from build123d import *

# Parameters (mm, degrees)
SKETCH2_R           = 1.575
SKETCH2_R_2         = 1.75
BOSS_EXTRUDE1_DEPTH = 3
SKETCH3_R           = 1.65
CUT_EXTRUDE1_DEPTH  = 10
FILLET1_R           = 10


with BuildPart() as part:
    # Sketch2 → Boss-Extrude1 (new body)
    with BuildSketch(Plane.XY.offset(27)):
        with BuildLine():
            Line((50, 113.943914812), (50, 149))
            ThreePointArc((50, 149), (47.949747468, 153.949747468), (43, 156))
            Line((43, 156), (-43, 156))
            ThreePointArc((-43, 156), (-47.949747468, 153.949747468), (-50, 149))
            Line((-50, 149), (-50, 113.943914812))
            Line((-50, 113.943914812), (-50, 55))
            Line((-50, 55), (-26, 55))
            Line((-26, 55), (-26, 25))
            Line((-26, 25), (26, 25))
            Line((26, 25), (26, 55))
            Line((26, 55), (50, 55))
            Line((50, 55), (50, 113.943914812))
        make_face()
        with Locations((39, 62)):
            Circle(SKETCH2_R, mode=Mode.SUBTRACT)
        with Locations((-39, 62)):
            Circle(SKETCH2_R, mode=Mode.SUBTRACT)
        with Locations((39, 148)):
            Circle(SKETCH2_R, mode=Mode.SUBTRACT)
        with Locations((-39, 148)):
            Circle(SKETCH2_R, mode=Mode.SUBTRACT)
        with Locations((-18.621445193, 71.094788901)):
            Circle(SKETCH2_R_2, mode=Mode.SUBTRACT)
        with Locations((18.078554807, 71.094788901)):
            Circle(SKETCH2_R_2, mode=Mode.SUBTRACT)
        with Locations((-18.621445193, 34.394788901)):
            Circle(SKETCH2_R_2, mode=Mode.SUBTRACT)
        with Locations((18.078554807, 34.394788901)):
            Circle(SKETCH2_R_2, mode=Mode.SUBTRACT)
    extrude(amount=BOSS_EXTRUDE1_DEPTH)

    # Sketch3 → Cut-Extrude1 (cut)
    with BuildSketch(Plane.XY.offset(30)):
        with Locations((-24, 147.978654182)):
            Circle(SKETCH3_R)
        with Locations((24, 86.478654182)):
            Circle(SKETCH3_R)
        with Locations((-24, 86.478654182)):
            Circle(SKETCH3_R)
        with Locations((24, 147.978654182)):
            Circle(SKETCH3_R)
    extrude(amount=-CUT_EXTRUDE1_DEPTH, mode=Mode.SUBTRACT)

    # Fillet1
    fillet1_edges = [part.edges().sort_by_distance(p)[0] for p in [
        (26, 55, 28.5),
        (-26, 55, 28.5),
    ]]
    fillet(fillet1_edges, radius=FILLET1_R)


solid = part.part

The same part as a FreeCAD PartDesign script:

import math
import FreeCAD as App
import Part
import Sketcher
from FreeCAD import Vector
Q = App.Units.Quantity


def edges_at(feature, points):
    """Names of the edges that pass closest to the given points."""
    edges = feature.Shape.Edges
    near = lambda p: min(range(len(edges)), key=lambda i: edges[i].distToShape(Part.Vertex(*p))[0])
    return sorted({f"Edge{near(p) + 1}" for p in points})

doc = App.newDocument("Part")
body = doc.addObject("PartDesign::Body", "Body")

sketch1 = body.newObject("Sketcher::SketchObject", "Sketch")
sketch1.AttachmentSupport = (doc.getObject("XY_Plane"), [""])
sketch1.MapMode = "FlatFace"
sketch1.AttachmentOffset = App.Placement(Vector(0, 0, 27), App.Rotation())
sketch1.addGeometry([
    Part.ArcOfCircle(Part.Circle(Vector(43, 149, 0), Vector(0, 0, 1), 7), math.radians(0), math.radians(90)),
    Part.LineSegment(Vector(43, 156, 0), Vector(-43, 156, 0)),
    Part.ArcOfCircle(Part.Circle(Vector(-43, 149, 0), Vector(0, 0, 1), 7), math.radians(90), math.radians(180)),
    Part.LineSegment(Vector(-50, 149, 0), Vector(-50, 55, 0)),
    Part.LineSegment(Vector(-50, 55, 0), Vector(-26, 55, 0)),
    Part.LineSegment(Vector(-26, 55, 0), Vector(-26, 25, 0)),
    Part.LineSegment(Vector(-26, 25, 0), Vector(26, 25, 0)),
    Part.LineSegment(Vector(26, 25, 0), Vector(26, 55, 0)),
    Part.LineSegment(Vector(26, 55, 0), Vector(50, 55, 0)),
    Part.LineSegment(Vector(50, 55, 0), Vector(50, 149, 0)),
    Part.Circle(Vector(-18.6, 34.4, 0), Vector(0, 0, 1), 1.8),
    Part.Circle(Vector(-39, 62, 0), Vector(0, 0, 1), 1.6),
    Part.Circle(Vector(-18.6, 71.1, 0), Vector(0, 0, 1), 1.8),
    Part.Circle(Vector(18.1, 34.4, 0), Vector(0, 0, 1), 1.8),
    Part.Circle(Vector(18.1, 71.1, 0), Vector(0, 0, 1), 1.8),
    Part.Circle(Vector(39, 62, 0), Vector(0, 0, 1), 1.6),
    Part.Circle(Vector(-39, 148, 0), Vector(0, 0, 1), 1.6),
    Part.Circle(Vector(39, 148, 0), Vector(0, 0, 1), 1.6),
], False)
sketch1.addConstraint([
    Sketcher.Constraint("Tangent", 0, 2, 1, 1),
    Sketcher.Constraint("Tangent", 1, 2, 2, 1),
    Sketcher.Constraint("Tangent", 2, 2, 3, 1),
    Sketcher.Constraint("Coincident", 3, 2, 4, 1),
    Sketcher.Constraint("Coincident", 4, 2, 5, 1),
    Sketcher.Constraint("Coincident", 5, 2, 6, 1),
    Sketcher.Constraint("Coincident", 6, 2, 7, 1),
    Sketcher.Constraint("Coincident", 7, 2, 8, 1),
    Sketcher.Constraint("Coincident", 8, 2, 9, 1),
    Sketcher.Constraint("Tangent", 9, 2, 0, 1),
    Sketcher.Constraint("Horizontal", 1),
    Sketcher.Constraint("Vertical", 3),
    Sketcher.Constraint("Horizontal", 4),
    Sketcher.Constraint("Vertical", 5),
    Sketcher.Constraint("Horizontal", 6),
    Sketcher.Constraint("Vertical", 7),
    Sketcher.Constraint("Horizontal", 8),
    Sketcher.Constraint("Vertical", 9),
    Sketcher.Constraint("Equal", 0, 2),
    Sketcher.Constraint("Equal", 10, 12),
    Sketcher.Constraint("Equal", 12, 13),
    Sketcher.Constraint("Equal", 13, 14),
    Sketcher.Constraint("Equal", 11, 15),
    Sketcher.Constraint("Equal", 15, 16),
    Sketcher.Constraint("Equal", 16, 17),
    Sketcher.Constraint("Symmetric", 11, 3, 15, 3, -2),
    Sketcher.Constraint("Symmetric", 16, 3, 17, 3, -2),
    Sketcher.Constraint("Symmetric", 4, 2, 7, 2, -2),
    Sketcher.Constraint("Horizontal", 10, 3, 13, 3),
    Sketcher.Constraint("Horizontal", 12, 3, 14, 3),
    Sketcher.Constraint("Vertical", 10, 3, 12, 3),
    Sketcher.Constraint("Vertical", 13, 3, 14, 3),
    Sketcher.Constraint("Vertical", 11, 3, 16, 3),
    Sketcher.Constraint("Equal", 4, 8),
    Sketcher.Constraint("Radius", 0, Q("7 mm")),
    Sketcher.Constraint("Diameter", 10, Q("3.5 mm")),
    Sketcher.Constraint("Diameter", 11, Q("3.15 mm")),
    Sketcher.Constraint("DistanceX", 1, 2, 1, 1, Q("86 mm")),
    Sketcher.Constraint("DistanceX", 4, 1, 4, 2, Q("24 mm")),
    Sketcher.Constraint("DistanceY", 3, 2, 3, 1, Q("94 mm")),
    Sketcher.Constraint("DistanceY", 5, 2, 5, 1, Q("30 mm")),
    Sketcher.Constraint("DistanceY", -1, 1, 0, 3, Q("149 mm")),
    Sketcher.Constraint("DistanceX", 11, 3, -1, 1, Q("39 mm")),
    Sketcher.Constraint("DistanceY", -1, 1, 11, 3, Q("62 mm")),
    Sketcher.Constraint("DistanceY", -1, 1, 16, 3, Q("148 mm")),
    Sketcher.Constraint("DistanceY", 10, 3, 12, 3, Q("36.7 mm")),
    Sketcher.Constraint("DistanceX", 10, 3, 13, 3, Q("36.7 mm")),
    Sketcher.Constraint("DistanceY", -1, 1, 10, 3, Q("34.394789 mm")),
    Sketcher.Constraint("DistanceX", 10, 3, -1, 1, Q("18.621445 mm")),
])
pad1 = body.newObject("PartDesign::Pad", "Pad")
pad1.Profile = sketch1
pad1.Length = 3

sketch2 = body.newObject("Sketcher::SketchObject", "Sketch001")
sketch2.AttachmentSupport = (doc.getObject("XY_Plane"), [""])
sketch2.MapMode = "FlatFace"
sketch2.AttachmentOffset = App.Placement(Vector(0, 0, 30), App.Rotation())
sketch2.addGeometry([
    Part.Circle(Vector(-24, 148, 0), Vector(0, 0, 1), 1.6),
    Part.Circle(Vector(24, 86.5, 0), Vector(0, 0, 1), 1.6),
    Part.Circle(Vector(-24, 86.5, 0), Vector(0, 0, 1), 1.6),
    Part.Circle(Vector(24, 148, 0), Vector(0, 0, 1), 1.6),
], False)
sketch2.addConstraint([
    Sketcher.Constraint("Equal", 0, 1),
    Sketcher.Constraint("Equal", 1, 2),
    Sketcher.Constraint("Equal", 2, 3),
    Sketcher.Constraint("Symmetric", 1, 3, 2, 3, -2),
    Sketcher.Constraint("Symmetric", 0, 3, 3, 3, -2),
    Sketcher.Constraint("Vertical", 0, 3, 2, 3),
    Sketcher.Constraint("Diameter", 0, Q("3.3 mm")),
    Sketcher.Constraint("DistanceX", 0, 3, -1, 1, Q("24 mm")),
    Sketcher.Constraint("DistanceY", 1, 3, 0, 3, Q("61.5 mm")),
    Sketcher.Constraint("DistanceY", -1, 1, 0, 3, Q("147.978654 mm")),
])
pocket1 = body.newObject("PartDesign::Pocket", "Pocket")
pocket1.Profile = sketch2
pocket1.Length = 10
doc.recompute()

fillet = body.newObject("PartDesign::Fillet", "Fillet")
fillet.Base = (pocket1, edges_at(pocket1, [(26, 55, 28.5), (-26, 55, 28.5)]))
fillet.Radius = 10

doc.recompute()
